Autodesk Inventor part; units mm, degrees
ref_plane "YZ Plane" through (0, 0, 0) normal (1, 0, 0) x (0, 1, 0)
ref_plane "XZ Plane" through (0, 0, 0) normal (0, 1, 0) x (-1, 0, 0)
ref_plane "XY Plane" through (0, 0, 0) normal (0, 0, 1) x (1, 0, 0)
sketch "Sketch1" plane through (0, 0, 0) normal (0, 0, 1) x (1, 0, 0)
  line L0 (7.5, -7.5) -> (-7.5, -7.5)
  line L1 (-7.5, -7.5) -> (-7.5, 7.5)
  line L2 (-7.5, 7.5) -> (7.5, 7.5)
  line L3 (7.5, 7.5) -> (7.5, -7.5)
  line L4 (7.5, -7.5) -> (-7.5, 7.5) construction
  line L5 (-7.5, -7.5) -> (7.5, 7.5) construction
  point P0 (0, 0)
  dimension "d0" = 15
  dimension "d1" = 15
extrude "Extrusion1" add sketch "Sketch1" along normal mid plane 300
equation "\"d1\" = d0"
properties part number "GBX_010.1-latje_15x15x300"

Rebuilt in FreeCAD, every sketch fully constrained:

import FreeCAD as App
import Part
import Sketcher

V = App.Vector
Q = App.Units.Quantity

doc = App.newDocument("Part")
body = doc.addObject("PartDesign::Body", "Body")

# Sketch on XY plane
sketch1 = body.newObject("Sketcher::SketchObject", "Sketch")
sketch1.AttachmentSupport = (doc.getObject("XY_Plane"), [""])
sketch1.MapMode = "FlatFace"
sketch1.addGeometry([
    Part.LineSegment(V(-8, -8, 0), V(8, -8, 0)),
    Part.LineSegment(V(8, -8, 0), V(8, 8, 0)),
    Part.LineSegment(V(8, 8, 0), V(-8, 8, 0)),
    Part.LineSegment(V(-8, 8, 0), V(-8, -8, 0)),
], False)
sketch1.addConstraint([
    Sketcher.Constraint("Coincident", 0, 2, 1, 1),
    Sketcher.Constraint("Coincident", 1, 2, 2, 1),
    Sketcher.Constraint("Coincident", 2, 2, 3, 1),
    Sketcher.Constraint("Coincident", 3, 2, 0, 1),
    Sketcher.Constraint("Horizontal", 0),
    Sketcher.Constraint("Vertical", 1),
    Sketcher.Constraint("Horizontal", 2),
    Sketcher.Constraint("Vertical", 3),
    Sketcher.Constraint("Symmetric", 0, 2, 2, 2, -1, 1),
    Sketcher.Constraint("Equal", 2, 1),
    Sketcher.Constraint("DistanceX", 0, 1, 0, 2, Q("15 mm")),
])
pad1 = body.newObject("PartDesign::Pad", "Pad")
pad1.Profile = sketch1
pad1.Length = 300
pad1.Midplane = True

doc.recompute()
